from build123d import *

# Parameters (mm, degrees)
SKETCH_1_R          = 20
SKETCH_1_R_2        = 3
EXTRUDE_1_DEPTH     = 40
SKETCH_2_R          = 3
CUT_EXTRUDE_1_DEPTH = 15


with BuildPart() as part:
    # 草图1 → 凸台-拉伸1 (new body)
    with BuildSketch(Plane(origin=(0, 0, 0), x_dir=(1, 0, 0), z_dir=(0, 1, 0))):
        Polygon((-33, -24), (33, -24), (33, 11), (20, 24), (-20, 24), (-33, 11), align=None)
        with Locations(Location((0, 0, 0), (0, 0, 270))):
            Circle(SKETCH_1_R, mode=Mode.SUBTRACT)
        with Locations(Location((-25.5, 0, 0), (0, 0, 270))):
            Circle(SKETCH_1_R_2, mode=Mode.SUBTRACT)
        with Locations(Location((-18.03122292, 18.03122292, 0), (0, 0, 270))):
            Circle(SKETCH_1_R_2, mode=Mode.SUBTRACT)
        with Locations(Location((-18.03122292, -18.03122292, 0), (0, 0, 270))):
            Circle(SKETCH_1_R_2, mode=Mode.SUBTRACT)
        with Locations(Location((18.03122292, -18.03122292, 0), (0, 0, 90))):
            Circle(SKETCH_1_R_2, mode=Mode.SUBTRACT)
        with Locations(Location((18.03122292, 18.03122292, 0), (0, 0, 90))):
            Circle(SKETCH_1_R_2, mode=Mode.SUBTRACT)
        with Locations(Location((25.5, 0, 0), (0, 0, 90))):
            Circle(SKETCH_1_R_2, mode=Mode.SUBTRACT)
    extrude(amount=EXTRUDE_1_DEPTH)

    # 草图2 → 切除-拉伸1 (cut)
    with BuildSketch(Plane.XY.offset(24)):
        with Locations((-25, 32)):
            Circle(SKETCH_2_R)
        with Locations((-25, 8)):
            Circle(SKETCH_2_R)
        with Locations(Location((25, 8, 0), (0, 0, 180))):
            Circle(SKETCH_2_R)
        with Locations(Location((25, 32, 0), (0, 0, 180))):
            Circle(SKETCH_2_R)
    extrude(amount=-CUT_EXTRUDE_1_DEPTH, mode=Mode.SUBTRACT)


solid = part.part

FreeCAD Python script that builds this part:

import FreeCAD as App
import Part
import Sketcher

V = App.Vector
Q = App.Units.Quantity


def add_polygon(sketch, points):
    """Adds a closed chain of lines whose ends are joined by coincident constraints."""
    first, n = sketch.GeometryCount, len(points)
    for a, b in zip(points, points[1:] + points[:1]):
        sketch.addGeometry(Part.LineSegment(App.Vector(*a, 0), App.Vector(*b, 0)), False)
    for i in range(n):
        sketch.addConstraint(Sketcher.Constraint("Coincident", first + i, 2, first + (i + 1) % n, 1))

doc = App.newDocument("Part")
body = doc.addObject("PartDesign::Body", "Body")

# Sketch on XZ plane
sketch1 = body.newObject("Sketcher::SketchObject", "Sketch")
sketch1.AttachmentSupport = (doc.getObject("XZ_Plane"), [""])
sketch1.MapMode = "FlatFace"
add_polygon(sketch1, [(-33, 24), (33, 24), (33, -11), (20, -24), (-20, -24), (-33, -11)])  # lines 0-5
sketch1.addGeometry(Part.Circle(V(-18.031223, 18.031223, 0), V(0, 0, 1), 3), False)  # 6
sketch1.addGeometry(Part.Circle(V(18.031223, 18.031223, 0), V(0, 0, 1), 3), False)  # 7
sketch1.addGeometry(Part.Circle(V(-25.5, 0, 0), V(0, 0, 1), 3), False)  # 8
sketch1.addGeometry(Part.Circle(V(-18.031223, -18.031223, 0), V(0, 0, 1), 3), False)  # 9
sketch1.addGeometry(Part.Circle(V(0, 0, 0), V(0, 0, 1), 20), False)  # 10
sketch1.addGeometry(Part.Circle(V(25.5, 0, 0), V(0, 0, 1), 3), False)  # 11
sketch1.addGeometry(Part.Circle(V(18.031223, -18.031223, 0), V(0, 0, 1), 3), False)  # 12
sketch1.addConstraint(Sketcher.Constraint("Horizontal", 0))
sketch1.addConstraint(Sketcher.Constraint("Vertical", 1))
sketch1.addConstraint(Sketcher.Constraint("Horizontal", 3))
sketch1.addConstraint(Sketcher.Constraint("Vertical", 5))
sketch1.addConstraint(Sketcher.Constraint("Coincident", 10, 3, -1, 1))
sketch1.addConstraint(Sketcher.Constraint("Equal", 6, 7))
sketch1.addConstraint(Sketcher.Constraint("Equal", 7, 8))
sketch1.addConstraint(Sketcher.Constraint("Equal", 8, 9))
sketch1.addConstraint(Sketcher.Constraint("Equal", 9, 11))
sketch1.addConstraint(Sketcher.Constraint("Equal", 11, 12))
sketch1.addConstraint(Sketcher.Constraint("Symmetric", 7, 3, 9, 3, -1, 1))
sketch1.addConstraint(Sketcher.Constraint("Symmetric", 8, 3, 11, 3, -1, 1))
sketch1.addConstraint(Sketcher.Constraint("Symmetric", 6, 3, 12, 3, -1, 1))
sketch1.addConstraint(Sketcher.Constraint("Symmetric", 6, 3, 7, 3, -2))
sketch1.addConstraint(Sketcher.Constraint("Symmetric", 1, 2, 4, 2, -2))
sketch1.addConstraint(Sketcher.Constraint("PointOnObject", 8, 3, -1))
sketch1.addConstraint(Sketcher.Constraint("Perpendicular", 2, 4))
sketch1.addConstraint(Sketcher.Constraint("Equal", 2, 4))
sketch1.addConstraint(Sketcher.Constraint("Diameter", 6, Q("6 mm")))
sketch1.addConstraint(Sketcher.Constraint("Diameter", 10, Q("40 mm")))
sketch1.addConstraint(Sketcher.Constraint("DistanceX", 0, 1, 0, 2, Q("66 mm")))
sketch1.addConstraint(Sketcher.Constraint("DistanceX", 3, 2, 3, 1, Q("40 mm")))
sketch1.addConstraint(Sketcher.Constraint("DistanceY", 1, 2, 1, 1, Q("35 mm")))
sketch1.addConstraint(Sketcher.Constraint("DistanceY", -1, 1, 0, 2, Q("24 mm")))
sketch1.addConstraint(Sketcher.Constraint("DistanceX", 8, 3, 11, 3, Q("51 mm")))
sketch1.addConstraint(Sketcher.Constraint("DistanceX", 6, 3, -1, 1, Q("18.031223 mm")))
sketch1.addConstraint(Sketcher.Constraint("DistanceY", -1, 1, 6, 3, Q("18.031223 mm")))
pad1 = body.newObject("PartDesign::Pad", "Pad")
pad1.Profile = sketch1
pad1.Length = 40
pad1.Reversed = True

# Sketch on XY plane
sketch2 = body.newObject("Sketcher::SketchObject", "Sketch001")
sketch2.AttachmentSupport = (doc.getObject("XY_Plane"), [""])
sketch2.MapMode = "FlatFace"
sketch2.AttachmentOffset = App.Placement(V(0, 0, 24), App.Rotation())
sketch2.addGeometry(Part.Circle(V(-25, 32, 0), V(0, 0, 1), 3), False)
sketch2.addGeometry(Part.Circle(V(-25, 8, 0), V(0, 0, 1), 3), False)
sketch2.addGeometry(Part.Circle(V(25, 8, 0), V(0, 0, 1), 3), False)
sketch2.addGeometry(Part.Circle(V(25, 32, 0), V(0, 0, 1), 3), False)
sketch2.addConstraint(Sketcher.Constraint("Equal", 0, 1))
sketch2.addConstraint(Sketcher.Constraint("Equal", 1, 2))
sketch2.addConstraint(Sketcher.Constraint("Equal", 2, 3))
sketch2.addConstraint(Sketcher.Constraint("Symmetric", 1, 3, 2, 3, -2))
sketch2.addConstraint(Sketcher.Constraint("Symmetric", 0, 3, 3, 3, -2))
sketch2.addConstraint(Sketcher.Constraint("Vertical", 0, 3, 1, 3))
sketch2.addConstraint(Sketcher.Constraint("Diameter", 0, Q("6 mm")))
sketch2.addConstraint(Sketcher.Constraint("DistanceX", 0, 3, -1, 1, Q("25 mm")))
sketch2.addConstraint(Sketcher.Constraint("DistanceY", -1, 1, 0, 3, Q("32 mm")))
sketch2.addConstraint(Sketcher.Constraint("DistanceY", -1, 1, 1, 3, Q("8 mm")))
pocket1 = body.newObject("PartDesign::Pocket", "Pocket")
pocket1.Profile = sketch2
pocket1.Length = 15

doc.recompute()
